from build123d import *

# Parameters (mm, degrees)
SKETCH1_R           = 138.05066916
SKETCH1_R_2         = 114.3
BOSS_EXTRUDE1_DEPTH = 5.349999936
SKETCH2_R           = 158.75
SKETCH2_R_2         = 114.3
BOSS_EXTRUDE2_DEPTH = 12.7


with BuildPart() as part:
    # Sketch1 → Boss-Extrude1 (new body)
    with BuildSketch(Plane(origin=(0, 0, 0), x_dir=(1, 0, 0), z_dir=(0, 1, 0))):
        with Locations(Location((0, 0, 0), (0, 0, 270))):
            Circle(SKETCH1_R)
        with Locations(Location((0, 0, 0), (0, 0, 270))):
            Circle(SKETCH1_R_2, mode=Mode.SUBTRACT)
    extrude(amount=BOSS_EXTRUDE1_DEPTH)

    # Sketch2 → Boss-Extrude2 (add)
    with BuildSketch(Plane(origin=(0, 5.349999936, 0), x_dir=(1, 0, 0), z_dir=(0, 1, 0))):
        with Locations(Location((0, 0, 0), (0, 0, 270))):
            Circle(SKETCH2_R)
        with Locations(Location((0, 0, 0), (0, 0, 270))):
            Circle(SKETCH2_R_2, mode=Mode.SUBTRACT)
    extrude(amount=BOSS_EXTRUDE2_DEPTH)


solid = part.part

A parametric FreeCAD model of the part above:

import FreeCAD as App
import Part
import Sketcher

V = App.Vector
Q = App.Units.Quantity

doc = App.newDocument("Part")
params = doc.addObject("Spreadsheet::Sheet", "Params")
for row, (alias, value) in enumerate([
    ("sketch1_diameter", "9 in"),
    ("pad1_length", "5.35 mm"),
    ("sketch2_diameter", "9 in"),
    ("sketch2_diameter2", "12.5 in"),
    ("pad2_length", "0.5 in"),
], start=1):
    params.set(f"A{row}", alias)
    params.set(f"B{row}", "=" + value)
    params.setAlias(f"B{row}", alias)

body = doc.addObject("PartDesign::Body", "Body")

sketch1 = doc.addObject("Sketcher::SketchObject", "Sketch")
body.addObject(sketch1)
sketch1.AttachmentSupport = (doc.XZ_Plane, [""])
sketch1.MapMode = "FlatFace"
sketch1.addGeometry(Part.Circle(V(0, 0, 0), V(0, 0, 1), 138.050669), False)
sketch1.addGeometry(Part.Circle(V(0, 0, 0), V(0, 0, 1), 114.3), False)
sketch1.addConstraint(Sketcher.Constraint("Coincident", 0, 3, -1, 1))
sketch1.addConstraint(Sketcher.Constraint("Coincident", 1, 3, -1, 1))
sketch1.addConstraint(Sketcher.Constraint("Diameter", 1, Q("9 in")))
sketch1.addConstraint(Sketcher.Constraint("Diameter", 0, Q("276.101338 mm")))
sketch1.setExpression("Constraints[2]", "Params.sketch1_diameter")
pad1 = doc.addObject("PartDesign::Pad", "Pad")
body.addObject(pad1)
pad1.Profile = sketch1
pad1.setExpression("Length", "Params.pad1_length")
pad1.Reversed = True

sketch2 = doc.addObject("Sketcher::SketchObject", "Sketch001")
body.addObject(sketch2)
sketch2.AttachmentSupport = (doc.XZ_Plane, [""])
sketch2.MapMode = "FlatFace"
sketch2.AttachmentOffset = App.Placement(V(0, 0, -5.35), App.Rotation())
sketch2.addGeometry(Part.Circle(V(0, 0, 0), V(0, 0, 1), 158.75), False)
sketch2.addGeometry(Part.Circle(V(0, 0, 0), V(0, 0, 1), 114.3), False)
sketch2.addConstraint(Sketcher.Constraint("Coincident", 0, 3, -1, 1))
sketch2.addConstraint(Sketcher.Constraint("Coincident", 1, 3, -1, 1))
sketch2.addConstraint(Sketcher.Constraint("Diameter", 1, Q("9 in")))
sketch2.addConstraint(Sketcher.Constraint("Diameter", 0, Q("12.5 in")))
sketch2.setExpression("Constraints[2]", "Params.sketch2_diameter")
sketch2.setExpression("Constraints[3]", "Params.sketch2_diameter2")
pad2 = doc.addObject("PartDesign::Pad", "Pad001")
body.addObject(pad2)
pad2.Profile = sketch2
pad2.setExpression("Length", "Params.pad2_length")
pad2.Reversed = True

doc.recompute()
